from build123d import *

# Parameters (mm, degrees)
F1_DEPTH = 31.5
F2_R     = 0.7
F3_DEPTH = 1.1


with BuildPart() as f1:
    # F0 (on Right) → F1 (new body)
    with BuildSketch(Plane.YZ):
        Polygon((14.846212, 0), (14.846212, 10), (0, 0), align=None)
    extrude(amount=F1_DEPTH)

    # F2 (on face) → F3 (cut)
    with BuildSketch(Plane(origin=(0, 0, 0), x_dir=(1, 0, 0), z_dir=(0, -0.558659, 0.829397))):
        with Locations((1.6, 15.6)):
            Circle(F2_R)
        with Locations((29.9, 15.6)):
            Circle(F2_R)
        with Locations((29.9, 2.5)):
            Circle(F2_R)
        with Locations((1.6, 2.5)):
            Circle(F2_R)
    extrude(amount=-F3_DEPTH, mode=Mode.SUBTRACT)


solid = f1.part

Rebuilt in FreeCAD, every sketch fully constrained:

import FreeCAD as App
import Part
import Sketcher
from FreeCAD import Vector


def add_polygon(sketch, points):
    """Adds a closed chain of lines whose ends are joined by coincident constraints."""
    first, n = sketch.GeometryCount, len(points)
    for a, b in zip(points, points[1:] + points[:1]):
        sketch.addGeometry(Part.LineSegment(App.Vector(*a, 0), App.Vector(*b, 0)), False)
    for i in range(n):
        sketch.addConstraint(Sketcher.Constraint("Coincident", first + i, 2, first + (i + 1) % n, 1))

doc = App.newDocument("Part")
params = doc.addObject("Spreadsheet::Sheet", "Params")
for row, (alias, value) in enumerate([
    ("sketch1_height", "10 mm"),
    ("sketch1_length", "17.9 mm"),
    ("pad1_length", "31.5 mm"),
    ("sketch2_diameter", "1.4 mm"),
    ("pocket1_length", "1.1 mm"),
], start=1):
    params.set(f"A{row}", alias)
    params.set(f"B{row}", "=" + value)
    params.setAlias(f"B{row}", alias)

body = doc.addObject("PartDesign::Body", "Body")

sketch1 = body.newObject("Sketcher::SketchObject", "Sketch")
sketch1.AttachmentSupport = (doc.getObject("YZ_Plane"), [""])
sketch1.MapMode = "FlatFace"
add_polygon(sketch1, [(15, 0), (15, 10), (0, 0)])
sketch1.addConstraint([
    Sketcher.Constraint("Vertical", 0),
    Sketcher.Constraint("Horizontal", 2),
    Sketcher.Constraint("Coincident", 1, 2, -1, 1),
    Sketcher.Constraint("DistanceY", 0, 1, 0, 2, 10.0),
    Sketcher.Constraint("Distance", 1, 17.9),
])
sketch1.setExpression("Constraints[6]", "Params.sketch1_height")
sketch1.setExpression("Constraints[7]", "Params.sketch1_length")
pad1 = body.newObject("PartDesign::Pad", "Pad")
pad1.Profile = sketch1
pad1.setExpression("Length", "Params.pad1_length")

sketch2 = body.newObject("Sketcher::SketchObject", "Sketch001")
sketch2.Placement = App.Placement(Vector(0, 0, 0), App.Rotation(Vector(1, 0, 0), Vector(0, 0.829397306, 0.558659206), Vector(0, -0.558659206, 0.829397306), "ZXY"))
sketch2.addGeometry([
    Part.Circle(Vector(1.6, 15.6, 0), Vector(0, 0, 1), 0.7),
    Part.Circle(Vector(29.9, 15.6, 0), Vector(0, 0, 1), 0.7),
    Part.Circle(Vector(29.9, 2.5, 0), Vector(0, 0, 1), 0.7),
    Part.Circle(Vector(1.6, 2.5, 0), Vector(0, 0, 1), 0.7),
], False)
sketch2.addConstraint([
    Sketcher.Constraint("Equal", 0, 1),
    Sketcher.Constraint("Equal", 1, 2),
    Sketcher.Constraint("Equal", 2, 3),
    Sketcher.Constraint("Horizontal", 0, 3, 1, 3),
    Sketcher.Constraint("Horizontal", 2, 3, 3, 3),
    Sketcher.Constraint("Vertical", 1, 3, 2, 3),
    Sketcher.Constraint("Vertical", 0, 3, 3, 3),
    Sketcher.Constraint("Diameter", 0, 1.4),
    Sketcher.Constraint("DistanceX", -1, 1, 0, 3, 1.6),
    Sketcher.Constraint("DistanceY", -1, 1, 0, 3, 15.6),
    Sketcher.Constraint("DistanceX", -1, 1, 1, 3, 29.9),
    Sketcher.Constraint("DistanceY", -1, 1, 2, 3, 2.5),
])
sketch2.setExpression("Constraints[7]", "Params.sketch2_diameter")
pocket1 = body.newObject("PartDesign::Pocket", "Pocket")
pocket1.Profile = sketch2
pocket1.setExpression("Length", "Params.pocket1_length")

doc.recompute()
